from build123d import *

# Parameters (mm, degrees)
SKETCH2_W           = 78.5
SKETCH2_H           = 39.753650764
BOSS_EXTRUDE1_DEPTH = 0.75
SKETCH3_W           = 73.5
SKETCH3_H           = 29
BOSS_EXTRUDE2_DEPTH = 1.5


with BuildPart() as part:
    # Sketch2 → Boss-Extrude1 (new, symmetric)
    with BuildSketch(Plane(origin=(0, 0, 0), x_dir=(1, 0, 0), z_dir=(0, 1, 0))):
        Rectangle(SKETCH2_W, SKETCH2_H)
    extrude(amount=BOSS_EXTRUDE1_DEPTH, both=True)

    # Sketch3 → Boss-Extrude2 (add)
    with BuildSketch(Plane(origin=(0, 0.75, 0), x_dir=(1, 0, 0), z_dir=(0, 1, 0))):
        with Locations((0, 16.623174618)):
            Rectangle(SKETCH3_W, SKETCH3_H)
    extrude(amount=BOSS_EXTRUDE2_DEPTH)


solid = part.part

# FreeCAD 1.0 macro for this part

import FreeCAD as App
import Part
import Sketcher

V = App.Vector
Q = App.Units.Quantity

doc = App.newDocument("Part")
body = doc.addObject("PartDesign::Body", "Body")

sketch1 = body.newObject("Sketcher::SketchObject", "Sketch")
sketch1.AttachmentSupport = (doc.getObject("XZ_Plane"), [""])
sketch1.MapMode = "FlatFace"
sketch1.addGeometry([
    Part.LineSegment(V(-39.25, -19.876825, 0), V(-39.25, 19.876825, 0)),
    Part.LineSegment(V(-39.25, 19.876825, 0), V(39.25, 19.876825, 0)),
    Part.LineSegment(V(39.25, 19.876825, 0), V(39.25, -19.876825, 0)),
    Part.LineSegment(V(39.25, -19.876825, 0), V(-39.25, -19.876825, 0)),
], False)
sketch1.addConstraint([
    Sketcher.Constraint("Coincident", 0, 2, 1, 1),
    Sketcher.Constraint("Coincident", 1, 2, 2, 1),
    Sketcher.Constraint("Coincident", 2, 2, 3, 1),
    Sketcher.Constraint("Coincident", 3, 2, 0, 1),
    Sketcher.Constraint("Vertical", 0),
    Sketcher.Constraint("Horizontal", 1),
    Sketcher.Constraint("Vertical", 2),
    Sketcher.Constraint("Horizontal", 3),
    Sketcher.Constraint("Symmetric", 0, 2, 2, 2, -1, 1),
    Sketcher.Constraint("DistanceX", 1, 1, 1, 2, Q("78.5 mm")),
    Sketcher.Constraint("DistanceY", 0, 1, 0, 2, Q("39.753651 mm")),
])
pad1 = body.newObject("PartDesign::Pad", "Pad")
pad1.Profile = sketch1
pad1.Length = 1.5
pad1.Midplane = True

sketch2 = body.newObject("Sketcher::SketchObject", "Sketch001")
sketch2.AttachmentSupport = (doc.getObject("XZ_Plane"), [""])
sketch2.MapMode = "FlatFace"
sketch2.AttachmentOffset = App.Placement(V(0, 0, -0.75), App.Rotation())
sketch2.addGeometry([
    Part.LineSegment(V(-36.75, -31.123175, 0), V(-36.75, -2.123175, 0)),
    Part.LineSegment(V(-36.75, -2.123175, 0), V(36.75, -2.123175, 0)),
    Part.LineSegment(V(36.75, -2.123175, 0), V(36.75, -31.123175, 0)),
    Part.LineSegment(V(36.75, -31.123175, 0), V(-36.75, -31.123175, 0)),
], False)
sketch2.addConstraint([
    Sketcher.Constraint("Coincident", 0, 2, 1, 1),
    Sketcher.Constraint("Coincident", 1, 2, 2, 1),
    Sketcher.Constraint("Coincident", 2, 2, 3, 1),
    Sketcher.Constraint("Coincident", 3, 2, 0, 1),
    Sketcher.Constraint("Vertical", 0),
    Sketcher.Constraint("Horizontal", 1),
    Sketcher.Constraint("Vertical", 2),
    Sketcher.Constraint("Horizontal", 3),
    Sketcher.Constraint("DistanceY", 0, 1, 0, 2, Q("29 mm")),
    Sketcher.Constraint("DistanceX", 1, 1, 1, 2, Q("73.5 mm")),
    Sketcher.Constraint("DistanceX", 0, 2, -1, 1, Q("36.75 mm")),
    Sketcher.Constraint("DistanceY", 0, 2, -1, 1, Q("2.123175 mm")),
])
pad2 = body.newObject("PartDesign::Pad", "Pad001")
pad2.Profile = sketch2
pad2.Length = 1.5
pad2.Reversed = True

doc.recompute()
